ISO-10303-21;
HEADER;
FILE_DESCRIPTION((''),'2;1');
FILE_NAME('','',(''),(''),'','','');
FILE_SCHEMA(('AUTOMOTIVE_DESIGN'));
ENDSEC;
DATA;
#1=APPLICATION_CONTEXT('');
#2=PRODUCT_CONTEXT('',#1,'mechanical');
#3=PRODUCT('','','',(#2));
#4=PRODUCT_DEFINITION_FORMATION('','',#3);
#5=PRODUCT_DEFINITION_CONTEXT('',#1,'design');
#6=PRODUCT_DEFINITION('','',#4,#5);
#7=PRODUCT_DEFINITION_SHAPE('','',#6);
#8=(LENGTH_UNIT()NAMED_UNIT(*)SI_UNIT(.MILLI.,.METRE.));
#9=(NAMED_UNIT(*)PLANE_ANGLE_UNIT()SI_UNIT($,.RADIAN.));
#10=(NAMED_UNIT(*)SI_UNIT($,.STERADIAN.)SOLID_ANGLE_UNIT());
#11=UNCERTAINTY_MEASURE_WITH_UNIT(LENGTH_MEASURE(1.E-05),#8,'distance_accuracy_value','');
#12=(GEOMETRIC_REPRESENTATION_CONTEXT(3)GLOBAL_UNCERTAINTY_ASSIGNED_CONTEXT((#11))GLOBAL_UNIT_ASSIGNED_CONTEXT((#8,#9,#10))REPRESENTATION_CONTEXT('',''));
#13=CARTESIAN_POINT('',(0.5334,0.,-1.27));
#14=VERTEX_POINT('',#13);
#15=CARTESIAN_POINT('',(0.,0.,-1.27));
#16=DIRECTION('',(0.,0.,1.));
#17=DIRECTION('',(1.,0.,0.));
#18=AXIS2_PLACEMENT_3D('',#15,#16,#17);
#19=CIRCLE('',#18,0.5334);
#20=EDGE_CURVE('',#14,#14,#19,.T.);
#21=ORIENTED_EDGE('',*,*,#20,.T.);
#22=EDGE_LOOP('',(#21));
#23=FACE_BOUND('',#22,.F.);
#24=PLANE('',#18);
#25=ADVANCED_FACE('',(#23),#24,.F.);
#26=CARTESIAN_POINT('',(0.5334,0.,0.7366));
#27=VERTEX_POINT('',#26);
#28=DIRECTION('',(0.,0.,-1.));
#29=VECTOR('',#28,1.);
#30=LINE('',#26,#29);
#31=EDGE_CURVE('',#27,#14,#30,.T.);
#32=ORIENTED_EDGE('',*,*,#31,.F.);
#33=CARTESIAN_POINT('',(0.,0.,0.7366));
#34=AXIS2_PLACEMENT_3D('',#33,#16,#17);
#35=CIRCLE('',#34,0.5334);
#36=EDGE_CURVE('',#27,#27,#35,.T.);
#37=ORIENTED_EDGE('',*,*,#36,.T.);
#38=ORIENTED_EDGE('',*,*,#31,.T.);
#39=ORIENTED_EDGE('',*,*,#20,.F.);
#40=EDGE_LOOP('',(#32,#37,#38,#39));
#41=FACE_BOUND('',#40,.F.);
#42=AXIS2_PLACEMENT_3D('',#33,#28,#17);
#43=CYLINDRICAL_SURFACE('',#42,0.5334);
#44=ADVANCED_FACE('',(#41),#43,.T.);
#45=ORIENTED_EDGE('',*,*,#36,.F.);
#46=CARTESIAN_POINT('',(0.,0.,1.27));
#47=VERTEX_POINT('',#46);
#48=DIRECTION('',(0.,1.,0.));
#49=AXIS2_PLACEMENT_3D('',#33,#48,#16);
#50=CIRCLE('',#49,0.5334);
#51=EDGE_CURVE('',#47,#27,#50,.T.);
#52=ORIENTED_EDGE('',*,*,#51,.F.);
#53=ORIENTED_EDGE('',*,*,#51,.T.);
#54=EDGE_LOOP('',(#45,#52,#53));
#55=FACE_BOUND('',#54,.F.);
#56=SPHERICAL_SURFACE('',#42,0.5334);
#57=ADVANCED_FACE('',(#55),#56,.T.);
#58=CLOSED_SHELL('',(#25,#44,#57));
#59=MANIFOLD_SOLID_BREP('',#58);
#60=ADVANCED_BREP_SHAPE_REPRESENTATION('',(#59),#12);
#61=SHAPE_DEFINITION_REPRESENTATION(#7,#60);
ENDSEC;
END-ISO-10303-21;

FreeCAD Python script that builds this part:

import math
import FreeCAD as App
import Part
import Sketcher
from FreeCAD import Vector
Q = App.Units.Quantity

doc = App.newDocument("Part")
body = doc.addObject("PartDesign::Body", "Body")

sketch1 = body.newObject("Sketcher::SketchObject", "Sketch")
sketch1.AttachmentSupport = (doc.getObject("XZ_Plane"), [""])
sketch1.MapMode = "FlatFace"
sketch1.addGeometry([
    Part.LineSegment(Vector(0.5, -1.3, 0), Vector(0, -1.3, 0)),
    Part.LineSegment(Vector(0, -1.3, 0), Vector(0, 1.3, 0)),
    Part.ArcOfCircle(Part.Circle(Vector(0, 0.7, 0), Vector(0, 0, 1), 0.5), math.radians(0), math.radians(90)),
    Part.LineSegment(Vector(0.5, 0.7, 0), Vector(0.5, -1.3, 0)),
], False)
sketch1.addConstraint([
    Sketcher.Constraint("Coincident", 0, 2, 1, 1),
    Sketcher.Constraint("Coincident", 1, 2, 2, 2),
    Sketcher.Constraint("Tangent", 2, 1, 3, 1),
    Sketcher.Constraint("Coincident", 3, 2, 0, 1),
    Sketcher.Constraint("Horizontal", 0),
    Sketcher.Constraint("Vertical", 1),
    Sketcher.Constraint("Vertical", 3),
    Sketcher.Constraint("Symmetric", 0, 2, 1, 2, -1, 1),
    Sketcher.Constraint("PointOnObject", 2, 3, -2),
    Sketcher.Constraint("DistanceY", 1, 1, 1, 2, Q("0.1 in")),
    Sketcher.Constraint("Radius", 2, Q("0.021 in")),
])
revolution = body.newObject("PartDesign::Revolution", "Revolution")
revolution.Profile = sketch1
revolution.ReferenceAxis = (sketch1, ["V_Axis"])
revolution.Angle = 360

doc.recompute()
